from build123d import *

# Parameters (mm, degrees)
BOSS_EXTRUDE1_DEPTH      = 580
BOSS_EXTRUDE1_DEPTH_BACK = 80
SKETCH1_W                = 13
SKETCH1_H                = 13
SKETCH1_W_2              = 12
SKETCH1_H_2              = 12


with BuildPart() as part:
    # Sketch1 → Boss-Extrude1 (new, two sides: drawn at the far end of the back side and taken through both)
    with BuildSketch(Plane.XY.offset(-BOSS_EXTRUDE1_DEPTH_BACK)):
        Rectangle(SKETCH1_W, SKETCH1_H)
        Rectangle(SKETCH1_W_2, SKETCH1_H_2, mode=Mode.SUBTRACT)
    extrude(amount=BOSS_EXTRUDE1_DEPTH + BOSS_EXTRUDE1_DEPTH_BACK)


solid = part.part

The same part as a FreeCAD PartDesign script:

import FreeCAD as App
import Part
import Sketcher
from FreeCAD import Vector


def add_polygon(sketch, points):
    """Adds a closed chain of lines whose ends are joined by coincident constraints."""
    first, n = sketch.GeometryCount, len(points)
    for a, b in zip(points, points[1:] + points[:1]):
        sketch.addGeometry(Part.LineSegment(App.Vector(*a, 0), App.Vector(*b, 0)), False)
    for i in range(n):
        sketch.addConstraint(Sketcher.Constraint("Coincident", first + i, 2, first + (i + 1) % n, 1))

doc = App.newDocument("Part")
body = doc.addObject("PartDesign::Body", "Body")

sketch1 = body.newObject("Sketcher::SketchObject", "Sketch")
sketch1.AttachmentSupport = (doc.getObject("XY_Plane"), [""])
sketch1.MapMode = "FlatFace"
add_polygon(sketch1, [(-6, 6), (-6, -6), (6, -6), (6, 6)])
add_polygon(sketch1, [(6, -6), (-6, -6), (-6, 6), (6, 6)])
sketch1.addConstraint([
    Sketcher.Constraint("Vertical", 0),
    Sketcher.Constraint("Horizontal", 1),
    Sketcher.Constraint("Vertical", 2),
    Sketcher.Constraint("Horizontal", 3),
    Sketcher.Constraint("Horizontal", 4),
    Sketcher.Constraint("Vertical", 5),
    Sketcher.Constraint("Horizontal", 6),
    Sketcher.Constraint("Vertical", 7),
    Sketcher.Constraint("Symmetric", 0, 2, 2, 2, -1, 1),
    Sketcher.Constraint("Symmetric", 4, 2, 6, 2, -1, 1),
    Sketcher.Constraint("Equal", 3, 0),
    Sketcher.Constraint("Equal", 6, 5),
    Sketcher.Constraint("DistanceX", 1, 1, 1, 2, 13.0),
    Sketcher.Constraint("DistanceX", 4, 2, 4, 1, 12.0),
])
pad1 = body.newObject("PartDesign::Pad", "Pad")
pad1.Profile = sketch1
pad1.Type = "TwoLengths"
pad1.Length = 580
pad1.Length2 = 80

doc.recompute()
